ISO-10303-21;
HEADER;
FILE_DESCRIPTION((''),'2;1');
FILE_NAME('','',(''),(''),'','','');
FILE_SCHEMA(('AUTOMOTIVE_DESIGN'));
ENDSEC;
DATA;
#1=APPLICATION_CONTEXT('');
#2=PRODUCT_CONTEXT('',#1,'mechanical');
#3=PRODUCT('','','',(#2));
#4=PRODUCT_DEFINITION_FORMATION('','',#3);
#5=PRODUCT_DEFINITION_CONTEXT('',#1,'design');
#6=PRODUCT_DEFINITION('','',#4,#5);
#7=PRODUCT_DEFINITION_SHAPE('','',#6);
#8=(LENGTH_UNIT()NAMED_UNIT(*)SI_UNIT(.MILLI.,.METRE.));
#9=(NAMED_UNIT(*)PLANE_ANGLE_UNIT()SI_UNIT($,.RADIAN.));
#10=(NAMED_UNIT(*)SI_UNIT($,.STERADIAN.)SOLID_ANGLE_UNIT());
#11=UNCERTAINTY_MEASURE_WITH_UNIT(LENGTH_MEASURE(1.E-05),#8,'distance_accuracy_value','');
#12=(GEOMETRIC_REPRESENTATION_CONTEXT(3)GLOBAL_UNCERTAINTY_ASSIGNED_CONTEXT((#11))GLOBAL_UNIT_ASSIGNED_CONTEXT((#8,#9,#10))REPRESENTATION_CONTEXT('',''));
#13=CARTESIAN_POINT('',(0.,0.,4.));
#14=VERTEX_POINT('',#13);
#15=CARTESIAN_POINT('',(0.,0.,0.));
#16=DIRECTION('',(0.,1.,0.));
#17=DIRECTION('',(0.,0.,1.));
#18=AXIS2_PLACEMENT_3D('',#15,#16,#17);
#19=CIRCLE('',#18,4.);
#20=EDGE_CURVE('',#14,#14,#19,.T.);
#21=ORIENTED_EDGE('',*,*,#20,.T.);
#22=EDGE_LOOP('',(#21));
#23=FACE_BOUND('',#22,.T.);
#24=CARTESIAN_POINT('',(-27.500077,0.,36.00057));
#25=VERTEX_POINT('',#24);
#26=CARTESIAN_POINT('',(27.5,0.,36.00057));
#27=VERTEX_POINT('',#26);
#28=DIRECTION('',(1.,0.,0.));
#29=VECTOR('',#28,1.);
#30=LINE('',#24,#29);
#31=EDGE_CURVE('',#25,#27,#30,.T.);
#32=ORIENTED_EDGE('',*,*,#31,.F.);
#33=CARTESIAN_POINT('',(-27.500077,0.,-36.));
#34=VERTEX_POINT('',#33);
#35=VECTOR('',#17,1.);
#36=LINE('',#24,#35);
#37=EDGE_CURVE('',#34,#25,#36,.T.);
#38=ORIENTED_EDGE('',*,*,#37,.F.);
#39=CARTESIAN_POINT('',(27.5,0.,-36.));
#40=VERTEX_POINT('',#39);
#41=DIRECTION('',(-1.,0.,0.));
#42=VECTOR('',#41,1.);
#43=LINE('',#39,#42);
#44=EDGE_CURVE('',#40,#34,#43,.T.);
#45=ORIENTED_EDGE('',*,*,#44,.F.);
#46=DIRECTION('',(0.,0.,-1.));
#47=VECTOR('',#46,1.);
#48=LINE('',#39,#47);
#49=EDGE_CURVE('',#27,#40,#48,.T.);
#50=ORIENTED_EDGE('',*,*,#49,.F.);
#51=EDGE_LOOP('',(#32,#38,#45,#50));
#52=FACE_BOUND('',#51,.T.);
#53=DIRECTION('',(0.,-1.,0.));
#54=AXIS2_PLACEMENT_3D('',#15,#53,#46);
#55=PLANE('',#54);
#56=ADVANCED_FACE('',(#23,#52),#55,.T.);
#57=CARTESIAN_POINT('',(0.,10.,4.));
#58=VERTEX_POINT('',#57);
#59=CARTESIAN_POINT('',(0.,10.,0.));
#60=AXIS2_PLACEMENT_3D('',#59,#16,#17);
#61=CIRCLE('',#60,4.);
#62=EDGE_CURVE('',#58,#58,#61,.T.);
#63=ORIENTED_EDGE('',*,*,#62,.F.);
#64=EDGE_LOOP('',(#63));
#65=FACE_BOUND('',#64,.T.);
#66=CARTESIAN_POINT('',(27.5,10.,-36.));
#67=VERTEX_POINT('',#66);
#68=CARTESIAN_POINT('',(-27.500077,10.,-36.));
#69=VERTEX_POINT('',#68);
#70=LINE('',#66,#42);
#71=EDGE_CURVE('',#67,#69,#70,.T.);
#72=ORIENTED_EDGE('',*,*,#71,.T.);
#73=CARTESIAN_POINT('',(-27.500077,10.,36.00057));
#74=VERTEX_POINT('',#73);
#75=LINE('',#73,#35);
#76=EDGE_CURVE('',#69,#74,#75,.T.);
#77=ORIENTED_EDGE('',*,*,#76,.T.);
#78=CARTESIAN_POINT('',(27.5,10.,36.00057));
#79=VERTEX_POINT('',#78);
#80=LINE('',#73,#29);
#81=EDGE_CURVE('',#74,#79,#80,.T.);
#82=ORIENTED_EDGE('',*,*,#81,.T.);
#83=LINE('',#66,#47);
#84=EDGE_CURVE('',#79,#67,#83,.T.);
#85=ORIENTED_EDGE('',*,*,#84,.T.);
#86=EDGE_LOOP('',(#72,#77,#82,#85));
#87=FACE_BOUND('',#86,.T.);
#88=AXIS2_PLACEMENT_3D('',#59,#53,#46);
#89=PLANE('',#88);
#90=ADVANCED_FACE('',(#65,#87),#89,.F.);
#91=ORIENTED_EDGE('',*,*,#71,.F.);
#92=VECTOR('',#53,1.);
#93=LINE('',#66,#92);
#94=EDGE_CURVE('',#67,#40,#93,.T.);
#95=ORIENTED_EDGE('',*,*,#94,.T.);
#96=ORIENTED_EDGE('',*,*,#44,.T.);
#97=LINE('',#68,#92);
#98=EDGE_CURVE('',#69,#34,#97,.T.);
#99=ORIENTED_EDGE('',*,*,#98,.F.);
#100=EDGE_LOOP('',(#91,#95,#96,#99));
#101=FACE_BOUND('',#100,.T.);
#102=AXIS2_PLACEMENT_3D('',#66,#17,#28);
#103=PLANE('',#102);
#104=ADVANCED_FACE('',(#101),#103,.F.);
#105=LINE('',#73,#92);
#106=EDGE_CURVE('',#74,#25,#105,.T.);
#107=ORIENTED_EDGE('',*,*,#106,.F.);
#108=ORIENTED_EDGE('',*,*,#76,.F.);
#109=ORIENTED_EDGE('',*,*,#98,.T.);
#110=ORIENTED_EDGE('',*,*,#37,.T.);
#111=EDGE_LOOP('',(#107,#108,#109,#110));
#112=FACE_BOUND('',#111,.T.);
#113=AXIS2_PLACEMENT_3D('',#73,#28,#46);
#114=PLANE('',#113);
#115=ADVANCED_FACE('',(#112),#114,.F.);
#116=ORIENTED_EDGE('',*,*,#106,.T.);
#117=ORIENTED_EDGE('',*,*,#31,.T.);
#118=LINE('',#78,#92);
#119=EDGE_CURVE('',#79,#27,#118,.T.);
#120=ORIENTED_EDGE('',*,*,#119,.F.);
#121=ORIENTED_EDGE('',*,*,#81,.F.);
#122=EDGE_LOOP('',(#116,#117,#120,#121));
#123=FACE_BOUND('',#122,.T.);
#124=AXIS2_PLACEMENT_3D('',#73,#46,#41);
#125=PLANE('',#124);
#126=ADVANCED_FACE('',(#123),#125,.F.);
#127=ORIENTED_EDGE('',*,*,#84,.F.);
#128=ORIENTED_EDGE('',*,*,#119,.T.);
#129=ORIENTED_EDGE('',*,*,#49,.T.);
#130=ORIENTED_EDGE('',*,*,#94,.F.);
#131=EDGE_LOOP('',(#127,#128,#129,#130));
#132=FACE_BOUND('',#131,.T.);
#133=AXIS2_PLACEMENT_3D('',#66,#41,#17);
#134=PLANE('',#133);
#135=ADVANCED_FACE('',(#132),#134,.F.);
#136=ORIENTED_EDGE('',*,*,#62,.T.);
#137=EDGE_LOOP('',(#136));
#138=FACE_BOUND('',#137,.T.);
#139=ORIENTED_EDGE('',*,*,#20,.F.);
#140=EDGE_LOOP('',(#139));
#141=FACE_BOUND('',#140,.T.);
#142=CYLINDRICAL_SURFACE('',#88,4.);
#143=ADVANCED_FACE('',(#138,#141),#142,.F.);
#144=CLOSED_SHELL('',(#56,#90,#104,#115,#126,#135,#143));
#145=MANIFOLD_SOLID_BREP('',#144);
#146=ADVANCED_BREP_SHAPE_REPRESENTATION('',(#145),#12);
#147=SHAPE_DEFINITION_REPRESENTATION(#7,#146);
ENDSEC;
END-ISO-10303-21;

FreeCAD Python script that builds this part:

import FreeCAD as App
import Part
import Sketcher
from FreeCAD import Vector


def add_polygon(sketch, points):
    """Adds a closed chain of lines whose ends are joined by coincident constraints."""
    first, n = sketch.GeometryCount, len(points)
    for a, b in zip(points, points[1:] + points[:1]):
        sketch.addGeometry(Part.LineSegment(App.Vector(*a, 0), App.Vector(*b, 0)), False)
    for i in range(n):
        sketch.addConstraint(Sketcher.Constraint("Coincident", first + i, 2, first + (i + 1) % n, 1))

doc = App.newDocument("Part")
body = doc.addObject("PartDesign::Body", "Body")

sketch1 = body.newObject("Sketcher::SketchObject", "Sketch")
sketch1.AttachmentSupport = (doc.getObject("XZ_Plane"), [""])
sketch1.MapMode = "FlatFace"
add_polygon(sketch1, [(-27.5, -36), (-27.5, 36), (27.5, 36), (27.5, -36)])
sketch1.addGeometry(Part.Circle(Vector(0, 0, 0), Vector(0, 0, 1), 4), False)
sketch1.addConstraint([
    Sketcher.Constraint("Vertical", 0),
    Sketcher.Constraint("Horizontal", 1),
    Sketcher.Constraint("Vertical", 2),
    Sketcher.Constraint("Horizontal", 3),
    Sketcher.Constraint("Coincident", 4, 3, -1, 1),
    Sketcher.Constraint("Diameter", 4, 8.0),
    Sketcher.Constraint("DistanceY", 2, 2, -1, 1, 36.0),
    Sketcher.Constraint("DistanceX", -1, 1, 1, 2, 27.5),
    Sketcher.Constraint("DistanceY", 0, 1, 0, 2, 72.00057),
    Sketcher.Constraint("DistanceX", 1, 1, 1, 2, 55.000077),
])
pad1 = body.newObject("PartDesign::Pad", "Pad")
pad1.Profile = sketch1
pad1.Length = 10
pad1.Reversed = True

doc.recompute()
